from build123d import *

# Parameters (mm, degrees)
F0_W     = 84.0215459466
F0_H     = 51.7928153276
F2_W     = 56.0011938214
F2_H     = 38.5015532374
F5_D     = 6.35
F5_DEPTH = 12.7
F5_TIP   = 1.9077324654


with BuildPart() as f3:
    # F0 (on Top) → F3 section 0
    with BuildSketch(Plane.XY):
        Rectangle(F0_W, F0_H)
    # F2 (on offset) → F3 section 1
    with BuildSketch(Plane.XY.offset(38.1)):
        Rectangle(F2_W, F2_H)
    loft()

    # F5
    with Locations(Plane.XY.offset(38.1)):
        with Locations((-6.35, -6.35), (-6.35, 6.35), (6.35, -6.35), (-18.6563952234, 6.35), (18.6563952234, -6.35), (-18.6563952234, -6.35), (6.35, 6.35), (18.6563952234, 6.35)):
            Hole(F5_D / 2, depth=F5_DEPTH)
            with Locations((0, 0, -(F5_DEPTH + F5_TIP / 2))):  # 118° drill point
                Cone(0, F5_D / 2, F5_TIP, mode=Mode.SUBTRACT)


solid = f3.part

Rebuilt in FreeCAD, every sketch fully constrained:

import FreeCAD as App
import Part
import Sketcher

V = App.Vector
Q = App.Units.Quantity


def add_polygon(sketch, points):
    """Adds a closed chain of lines whose ends are joined by coincident constraints."""
    first, n = sketch.GeometryCount, len(points)
    for a, b in zip(points, points[1:] + points[:1]):
        sketch.addGeometry(Part.LineSegment(App.Vector(*a, 0), App.Vector(*b, 0)), False)
    for i in range(n):
        sketch.addConstraint(Sketcher.Constraint("Coincident", first + i, 2, first + (i + 1) % n, 1))

doc = App.newDocument("Part")
body = doc.addObject("PartDesign::Body", "Body")

sketch1 = body.newObject("Sketcher::SketchObject", "Sketch")
sketch1.AttachmentSupport = (doc.getObject("XY_Plane"), [""])
sketch1.MapMode = "FlatFace"
add_polygon(sketch1, [(-42, 26), (-42, -26), (42, -26), (42, 26)])
sketch1.addConstraint([
    Sketcher.Constraint("Vertical", 0),
    Sketcher.Constraint("Horizontal", 1),
    Sketcher.Constraint("Vertical", 2),
    Sketcher.Constraint("Horizontal", 3),
    Sketcher.Constraint("Symmetric", 0, 2, 2, 2, -1, 1),
    Sketcher.Constraint("DistanceX", 1, 1, 1, 2, 84.021546),
    Sketcher.Constraint("DistanceY", 0, 2, 0, 1, 51.792815),
])

sketch2 = body.newObject("Sketcher::SketchObject", "Sketch001")
sketch2.AttachmentSupport = (doc.getObject("XY_Plane"), [""])
sketch2.MapMode = "FlatFace"
sketch2.AttachmentOffset = App.Placement(V(0, 0, 1.5 * 25.4), App.Rotation())
add_polygon(sketch2, [(-28, 19), (-28, -19), (28, -19), (28, 19)])
sketch2.addConstraint([
    Sketcher.Constraint("Vertical", 0),
    Sketcher.Constraint("Horizontal", 1),
    Sketcher.Constraint("Vertical", 2),
    Sketcher.Constraint("Horizontal", 3),
    Sketcher.Constraint("Symmetric", 0, 2, 2, 2, -1, 1),
    Sketcher.Constraint("DistanceX", 1, 1, 1, 2, 56.001194),
    Sketcher.Constraint("DistanceY", 0, 2, 0, 1, 38.501553),
])

additiveloft = body.newObject("PartDesign::AdditiveLoft", "AdditiveLoft")
additiveloft.Profile = sketch1
additiveloft.Sections = [sketch2]

sketch3 = body.newObject("Sketcher::SketchObject", "Sketch002")
sketch3.AttachmentSupport = (doc.getObject("XY_Plane"), [""])
sketch3.MapMode = "FlatFace"
sketch3.AttachmentOffset = App.Placement(V(0, 0, 1.5 * 25.4), App.Rotation())
sketch3.addGeometry([
    Part.Circle(V(-6.3, -6.3, 0), V(0, 0, 1), 3.2),
    Part.Circle(V(-6.3, 6.3, 0), V(0, 0, 1), 3.2),
    Part.Circle(V(6.3, -6.3, 0), V(0, 0, 1), 3.2),
    Part.Circle(V(-18.7, 6.3, 0), V(0, 0, 1), 3.2),
    Part.Circle(V(18.7, -6.3, 0), V(0, 0, 1), 3.2),
    Part.Circle(V(-18.7, -6.3, 0), V(0, 0, 1), 3.2),
    Part.Circle(V(6.3, 6.3, 0), V(0, 0, 1), 3.2),
    Part.Circle(V(18.7, 6.3, 0), V(0, 0, 1), 3.2),
], False)
sketch3.addConstraint([
    Sketcher.Constraint("Equal", 0, 1),
    Sketcher.Constraint("Equal", 1, 2),
    Sketcher.Constraint("Equal", 2, 3),
    Sketcher.Constraint("Equal", 3, 4),
    Sketcher.Constraint("Equal", 4, 5),
    Sketcher.Constraint("Equal", 5, 6),
    Sketcher.Constraint("Equal", 6, 7),
    Sketcher.Constraint("Symmetric", 1, 3, 2, 3, -1, 1),
    Sketcher.Constraint("Symmetric", 3, 3, 4, 3, -1, 1),
    Sketcher.Constraint("Symmetric", 0, 3, 6, 3, -1, 1),
    Sketcher.Constraint("Symmetric", 5, 3, 7, 3, -1, 1),
    Sketcher.Constraint("Symmetric", 0, 3, 2, 3, -2),
    Sketcher.Constraint("Symmetric", 4, 3, 5, 3, -2),
    Sketcher.Constraint("Horizontal", 1, 3, 3, 3),
    Sketcher.Constraint("Diameter", 0, Q("0.25 in")),
    Sketcher.Constraint("DistanceY", 0, 3, 1, 3, Q("0.5 in")),
    Sketcher.Constraint("DistanceX", 0, 3, 2, 3, Q("0.5 in")),
    Sketcher.Constraint("DistanceX", 3, 3, 4, 3, 37.31279),
])
doc.recompute()
hole = body.newObject("PartDesign::Hole", "Hole")
hole.Profile = sketch3
hole.ThreadType = "None"
hole.Diameter = Q("0.25 in")
hole.DepthType = "Dimension"
hole.Depth = Q("0.5 in")
hole.DrillPoint = "Angled"
hole.DrillPointAngle = 118

doc.recompute()
